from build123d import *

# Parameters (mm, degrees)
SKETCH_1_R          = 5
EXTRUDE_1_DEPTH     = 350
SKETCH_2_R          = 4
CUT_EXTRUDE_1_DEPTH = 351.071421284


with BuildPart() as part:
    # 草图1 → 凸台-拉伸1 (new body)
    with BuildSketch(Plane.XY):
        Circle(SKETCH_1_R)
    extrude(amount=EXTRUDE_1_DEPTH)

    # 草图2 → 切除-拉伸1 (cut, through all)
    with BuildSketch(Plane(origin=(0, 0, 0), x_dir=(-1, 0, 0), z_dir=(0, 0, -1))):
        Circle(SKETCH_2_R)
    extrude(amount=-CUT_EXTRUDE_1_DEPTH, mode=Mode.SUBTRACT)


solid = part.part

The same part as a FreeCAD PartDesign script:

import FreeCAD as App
import Part
import Sketcher

V = App.Vector

doc = App.newDocument("Part")
body = doc.addObject("PartDesign::Body", "Body")

# Sketch on XY plane
sketch1 = body.newObject("Sketcher::SketchObject", "Sketch")
sketch1.AttachmentSupport = (doc.getObject("XY_Plane"), [""])
sketch1.MapMode = "FlatFace"
sketch1.addGeometry(Part.Circle(V(0, 0, 0), V(0, 0, 1), 5), False)
sketch1.addConstraint([
    Sketcher.Constraint("Coincident", 0, 3, -1, 1),
    Sketcher.Constraint("Diameter", 0, 10.0),
])
pad1 = body.newObject("PartDesign::Pad", "Pad")
pad1.Profile = sketch1
pad1.Length = 350

# Sketch on XY plane
sketch2 = body.newObject("Sketcher::SketchObject", "Sketch001")
sketch2.AttachmentSupport = (doc.getObject("XY_Plane"), [""])
sketch2.MapMode = "FlatFace"
sketch2.addGeometry(Part.Circle(V(0, 0, 0), V(0, 0, 1), 4), False)
sketch2.addConstraint([
    Sketcher.Constraint("Coincident", 0, 3, -1, 1),
    Sketcher.Constraint("Diameter", 0, 8.0),
])
pocket1 = body.newObject("PartDesign::Pocket", "Pocket")
pocket1.Profile = sketch2
pocket1.Type = "ThroughAll"
pocket1.Reversed = True

doc.recompute()
